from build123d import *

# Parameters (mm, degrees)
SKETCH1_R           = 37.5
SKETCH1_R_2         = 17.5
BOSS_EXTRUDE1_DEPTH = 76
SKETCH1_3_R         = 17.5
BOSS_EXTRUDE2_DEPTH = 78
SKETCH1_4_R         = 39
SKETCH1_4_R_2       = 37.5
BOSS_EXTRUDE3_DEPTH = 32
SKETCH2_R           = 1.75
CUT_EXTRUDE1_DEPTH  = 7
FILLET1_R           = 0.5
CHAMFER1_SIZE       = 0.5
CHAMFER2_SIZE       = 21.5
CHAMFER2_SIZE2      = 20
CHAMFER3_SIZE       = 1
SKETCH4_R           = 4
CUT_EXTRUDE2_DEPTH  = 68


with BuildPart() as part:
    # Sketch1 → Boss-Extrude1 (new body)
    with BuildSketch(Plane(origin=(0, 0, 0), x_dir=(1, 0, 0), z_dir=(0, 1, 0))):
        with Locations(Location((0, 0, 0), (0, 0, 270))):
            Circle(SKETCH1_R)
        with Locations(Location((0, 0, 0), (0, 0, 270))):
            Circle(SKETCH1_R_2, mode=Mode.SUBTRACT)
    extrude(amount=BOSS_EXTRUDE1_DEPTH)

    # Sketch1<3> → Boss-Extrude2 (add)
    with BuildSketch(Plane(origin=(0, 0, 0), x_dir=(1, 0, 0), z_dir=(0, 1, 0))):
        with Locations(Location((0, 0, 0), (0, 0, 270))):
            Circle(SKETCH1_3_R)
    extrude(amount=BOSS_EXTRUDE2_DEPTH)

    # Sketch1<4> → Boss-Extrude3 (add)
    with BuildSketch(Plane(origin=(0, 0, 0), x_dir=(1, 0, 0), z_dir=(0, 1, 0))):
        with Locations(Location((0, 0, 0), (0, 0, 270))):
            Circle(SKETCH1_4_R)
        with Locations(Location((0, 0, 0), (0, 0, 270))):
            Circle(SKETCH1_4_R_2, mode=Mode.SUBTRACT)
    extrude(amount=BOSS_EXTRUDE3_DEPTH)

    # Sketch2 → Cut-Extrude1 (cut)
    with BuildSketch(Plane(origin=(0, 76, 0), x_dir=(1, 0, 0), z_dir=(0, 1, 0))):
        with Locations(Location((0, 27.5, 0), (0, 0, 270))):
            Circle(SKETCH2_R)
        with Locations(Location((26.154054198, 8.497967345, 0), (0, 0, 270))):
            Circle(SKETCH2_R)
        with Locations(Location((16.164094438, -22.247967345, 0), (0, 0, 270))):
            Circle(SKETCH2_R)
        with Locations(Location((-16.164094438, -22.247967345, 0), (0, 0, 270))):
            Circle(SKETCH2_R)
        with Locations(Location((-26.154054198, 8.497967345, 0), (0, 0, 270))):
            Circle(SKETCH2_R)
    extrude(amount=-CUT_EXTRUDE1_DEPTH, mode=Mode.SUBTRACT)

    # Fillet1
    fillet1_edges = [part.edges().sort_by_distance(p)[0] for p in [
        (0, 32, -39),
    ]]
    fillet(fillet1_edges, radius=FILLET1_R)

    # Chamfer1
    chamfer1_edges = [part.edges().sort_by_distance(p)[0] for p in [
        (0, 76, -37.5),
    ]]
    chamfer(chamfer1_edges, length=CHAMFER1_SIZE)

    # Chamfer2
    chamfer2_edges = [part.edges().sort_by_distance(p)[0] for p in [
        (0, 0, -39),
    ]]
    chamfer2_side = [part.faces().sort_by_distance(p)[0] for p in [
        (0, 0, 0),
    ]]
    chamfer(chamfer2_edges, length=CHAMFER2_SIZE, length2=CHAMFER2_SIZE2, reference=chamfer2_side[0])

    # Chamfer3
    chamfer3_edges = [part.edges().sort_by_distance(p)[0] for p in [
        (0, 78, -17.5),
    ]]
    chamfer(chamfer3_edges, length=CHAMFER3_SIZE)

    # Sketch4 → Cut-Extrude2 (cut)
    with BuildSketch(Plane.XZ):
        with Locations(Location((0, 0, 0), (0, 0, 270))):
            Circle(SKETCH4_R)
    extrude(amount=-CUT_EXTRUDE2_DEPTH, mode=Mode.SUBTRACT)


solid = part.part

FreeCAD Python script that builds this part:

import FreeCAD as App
import Part
import Sketcher
from FreeCAD import Vector


def edges_at(feature, points):
    """Names of the edges that pass closest to the given points."""
    edges = feature.Shape.Edges
    near = lambda p: min(range(len(edges)), key=lambda i: edges[i].distToShape(Part.Vertex(*p))[0])
    return sorted({f"Edge{near(p) + 1}" for p in points})

doc = App.newDocument("Part")
body = doc.addObject("PartDesign::Body", "Body")

sketch1 = doc.addObject("Sketcher::SketchObject", "Sketch")
body.addObject(sketch1)
sketch1.AttachmentSupport = (doc.XZ_Plane, [""])
sketch1.MapMode = "FlatFace"
sketch1.addGeometry(Part.Circle(Vector(0, 0, 0), Vector(0, 0, 1), 38), False)
sketch1.addGeometry(Part.Circle(Vector(0, 0, 0), Vector(0, 0, 1), 18), False)
sketch1.addConstraint(Sketcher.Constraint("Coincident", 0, 3, -1, 1))
sketch1.addConstraint(Sketcher.Constraint("Coincident", 1, 3, -1, 1))
sketch1.addConstraint(Sketcher.Constraint("Diameter", 0, 75.0))
sketch1.addConstraint(Sketcher.Constraint("Diameter", 1, 35.0))
pad1 = doc.addObject("PartDesign::Pad", "Pad")
body.addObject(pad1)
pad1.Profile = sketch1
pad1.Length = 76
pad1.Reversed = True

sketch2 = doc.addObject("Sketcher::SketchObject", "Sketch001")
body.addObject(sketch2)
sketch2.AttachmentSupport = (doc.XZ_Plane, [""])
sketch2.MapMode = "FlatFace"
sketch2.addGeometry(Part.Circle(Vector(0, 0, 0), Vector(0, 0, 1), 18), False)
sketch2.addConstraint(Sketcher.Constraint("Coincident", 0, 3, -1, 1))
sketch2.addConstraint(Sketcher.Constraint("Diameter", 0, 35.0))
pad2 = doc.addObject("PartDesign::Pad", "Pad001")
body.addObject(pad2)
pad2.Profile = sketch2
pad2.Length = 78
pad2.Reversed = True

sketch3 = doc.addObject("Sketcher::SketchObject", "Sketch002")
body.addObject(sketch3)
sketch3.AttachmentSupport = (doc.XZ_Plane, [""])
sketch3.MapMode = "FlatFace"
sketch3.addGeometry(Part.Circle(Vector(0, 0, 0), Vector(0, 0, 1), 39), False)
sketch3.addGeometry(Part.Circle(Vector(0, 0, 0), Vector(0, 0, 1), 38), False)
sketch3.addConstraint(Sketcher.Constraint("Coincident", 0, 3, -1, 1))
sketch3.addConstraint(Sketcher.Constraint("Coincident", 1, 3, -1, 1))
sketch3.addConstraint(Sketcher.Constraint("Diameter", 0, 78.0))
sketch3.addConstraint(Sketcher.Constraint("Diameter", 1, 75.0))
pad3 = doc.addObject("PartDesign::Pad", "Pad002")
body.addObject(pad3)
pad3.Profile = sketch3
pad3.Length = 32
pad3.Reversed = True

sketch4 = doc.addObject("Sketcher::SketchObject", "Sketch003")
body.addObject(sketch4)
sketch4.AttachmentSupport = (doc.XZ_Plane, [""])
sketch4.MapMode = "FlatFace"
sketch4.AttachmentOffset = App.Placement(Vector(0, 0, -76), App.Rotation())
sketch4.addGeometry(Part.Circle(Vector(0, -27.5, 0), Vector(0, 0, 1), 1.8), False)
sketch4.addGeometry(Part.Circle(Vector(26.2, -8.5, 0), Vector(0, 0, 1), 1.8), False)
sketch4.addGeometry(Part.Circle(Vector(16.2, 22.2, 0), Vector(0, 0, 1), 1.8), False)
sketch4.addGeometry(Part.Circle(Vector(-16.2, 22.2, 0), Vector(0, 0, 1), 1.8), False)
sketch4.addGeometry(Part.Circle(Vector(-26.2, -8.5, 0), Vector(0, 0, 1), 1.8), False)
sketch4.addConstraint(Sketcher.Constraint("Equal", 0, 1))
sketch4.addConstraint(Sketcher.Constraint("Equal", 1, 2))
sketch4.addConstraint(Sketcher.Constraint("Equal", 2, 3))
sketch4.addConstraint(Sketcher.Constraint("Equal", 3, 4))
sketch4.addConstraint(Sketcher.Constraint("Symmetric", 2, 3, 3, 3, -2))
sketch4.addConstraint(Sketcher.Constraint("Symmetric", 1, 3, 4, 3, -2))
sketch4.addConstraint(Sketcher.Constraint("PointOnObject", 0, 3, -2))
sketch4.addConstraint(Sketcher.Constraint("Diameter", 0, 3.5))
sketch4.addConstraint(Sketcher.Constraint("DistanceY", 0, 3, -1, 1, 27.5))
sketch4.addConstraint(Sketcher.Constraint("DistanceX", 2, 3, 1, 3, 9.98996))
sketch4.addConstraint(Sketcher.Constraint("DistanceX", 3, 3, 2, 3, 32.328189))
sketch4.addConstraint(Sketcher.Constraint("DistanceY", 1, 3, -1, 1, 8.497967))
sketch4.addConstraint(Sketcher.Constraint("DistanceY", -1, 1, 2, 3, 22.247967))
pocket1 = doc.addObject("PartDesign::Pocket", "Pocket")
body.addObject(pocket1)
pocket1.Profile = sketch4
pocket1.Length = 7
pocket1.Reversed = True
doc.recompute()

fillet = doc.addObject("PartDesign::Fillet", "Fillet")
body.addObject(fillet)
fillet.Base = (pocket1, edges_at(pocket1, [(0, 32, -39)]))
fillet.Radius = 0.5
doc.recompute()

chamfer = doc.addObject("PartDesign::Chamfer", "Chamfer")
body.addObject(chamfer)
chamfer.Base = (fillet, edges_at(fillet, [(0, 76, -37.5)]))
chamfer.Size = 0.5
doc.recompute()

chamfer2 = doc.addObject("PartDesign::Chamfer", "Chamfer001")
body.addObject(chamfer2)
chamfer2.Base = (chamfer, edges_at(chamfer, [(0, 0, -39)]))
chamfer2.ChamferType = "Two distances"
chamfer2.Size = 21.5
chamfer2.Size2 = 20
chamfer2.FlipDirection = True
doc.recompute()

chamfer3 = doc.addObject("PartDesign::Chamfer", "Chamfer002")
body.addObject(chamfer3)
chamfer3.Base = (chamfer2, edges_at(chamfer2, [(0, 78, -17.5)]))
chamfer3.Size = 1

sketch5 = doc.addObject("Sketcher::SketchObject", "Sketch004")
body.addObject(sketch5)
sketch5.AttachmentSupport = (doc.XZ_Plane, [""])
sketch5.MapMode = "FlatFace"
sketch5.addGeometry(Part.Circle(Vector(0, 0, 0), Vector(0, 0, 1), 4), False)
sketch5.addConstraint(Sketcher.Constraint("Coincident", 0, 3, -1, 1))
sketch5.addConstraint(Sketcher.Constraint("Diameter", 0, 8.0))
pocket2 = doc.addObject("PartDesign::Pocket", "Pocket001")
body.addObject(pocket2)
pocket2.Profile = sketch5
pocket2.Length = 68

doc.recompute()
